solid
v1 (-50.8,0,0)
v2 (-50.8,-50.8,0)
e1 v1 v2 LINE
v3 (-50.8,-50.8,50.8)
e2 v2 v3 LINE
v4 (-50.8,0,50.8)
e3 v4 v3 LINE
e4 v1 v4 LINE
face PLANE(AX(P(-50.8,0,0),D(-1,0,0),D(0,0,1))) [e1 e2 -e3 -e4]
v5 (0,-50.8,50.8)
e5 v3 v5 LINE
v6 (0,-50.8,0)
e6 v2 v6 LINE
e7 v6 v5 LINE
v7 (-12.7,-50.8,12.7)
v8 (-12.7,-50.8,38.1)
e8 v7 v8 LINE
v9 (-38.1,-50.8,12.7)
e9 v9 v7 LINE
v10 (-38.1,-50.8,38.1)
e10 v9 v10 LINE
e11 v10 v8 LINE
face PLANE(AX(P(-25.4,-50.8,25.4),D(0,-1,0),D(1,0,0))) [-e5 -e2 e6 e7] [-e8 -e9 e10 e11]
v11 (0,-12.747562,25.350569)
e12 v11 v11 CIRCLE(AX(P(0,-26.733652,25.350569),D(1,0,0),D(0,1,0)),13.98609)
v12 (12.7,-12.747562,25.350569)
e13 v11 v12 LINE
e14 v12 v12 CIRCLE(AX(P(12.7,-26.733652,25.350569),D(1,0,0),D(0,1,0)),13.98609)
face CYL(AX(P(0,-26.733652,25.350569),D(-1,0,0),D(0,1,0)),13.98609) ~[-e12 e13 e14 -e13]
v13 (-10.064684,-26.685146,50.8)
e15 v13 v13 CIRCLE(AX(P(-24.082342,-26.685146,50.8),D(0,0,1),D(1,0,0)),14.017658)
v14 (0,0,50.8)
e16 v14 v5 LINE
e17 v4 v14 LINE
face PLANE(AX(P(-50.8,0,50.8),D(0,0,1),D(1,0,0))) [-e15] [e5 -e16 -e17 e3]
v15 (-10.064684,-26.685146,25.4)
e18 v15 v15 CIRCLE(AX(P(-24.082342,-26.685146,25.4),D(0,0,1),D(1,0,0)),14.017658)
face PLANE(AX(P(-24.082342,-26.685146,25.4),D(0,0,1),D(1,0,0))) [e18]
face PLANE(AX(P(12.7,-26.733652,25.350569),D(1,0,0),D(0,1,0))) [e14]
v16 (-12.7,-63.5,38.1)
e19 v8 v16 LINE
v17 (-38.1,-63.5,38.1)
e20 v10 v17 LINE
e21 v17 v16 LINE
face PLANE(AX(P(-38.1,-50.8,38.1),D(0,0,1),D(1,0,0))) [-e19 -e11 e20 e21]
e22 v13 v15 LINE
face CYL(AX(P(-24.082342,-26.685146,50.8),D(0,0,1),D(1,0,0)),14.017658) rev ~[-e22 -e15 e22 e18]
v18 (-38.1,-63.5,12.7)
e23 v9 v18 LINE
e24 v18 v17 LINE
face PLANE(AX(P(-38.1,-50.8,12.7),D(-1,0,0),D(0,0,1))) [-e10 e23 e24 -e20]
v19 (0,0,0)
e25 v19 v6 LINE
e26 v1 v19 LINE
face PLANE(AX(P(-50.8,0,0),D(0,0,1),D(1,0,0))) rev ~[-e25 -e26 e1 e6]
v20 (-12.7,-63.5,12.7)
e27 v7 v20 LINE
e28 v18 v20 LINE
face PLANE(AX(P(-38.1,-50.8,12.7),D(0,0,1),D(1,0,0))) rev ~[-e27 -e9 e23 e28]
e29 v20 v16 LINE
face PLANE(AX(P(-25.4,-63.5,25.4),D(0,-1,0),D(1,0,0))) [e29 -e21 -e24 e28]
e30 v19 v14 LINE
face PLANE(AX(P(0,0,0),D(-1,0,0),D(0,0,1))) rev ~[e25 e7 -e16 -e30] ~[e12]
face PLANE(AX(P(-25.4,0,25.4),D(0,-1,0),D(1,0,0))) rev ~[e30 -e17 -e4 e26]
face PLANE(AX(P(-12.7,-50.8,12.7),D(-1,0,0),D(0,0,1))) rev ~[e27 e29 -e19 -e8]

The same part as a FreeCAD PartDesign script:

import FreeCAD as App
import Part
import Sketcher
from FreeCAD import Vector
Q = App.Units.Quantity

doc = App.newDocument("Part")
body = doc.addObject("PartDesign::Body", "Body")

# Sketch on XZ plane
sketch1 = body.newObject("Sketcher::SketchObject", "Sketch")
sketch1.AttachmentSupport = (doc.getObject("XZ_Plane"), [""])
sketch1.MapMode = "FlatFace"
sketch1.addGeometry([
    Part.LineSegment(Vector(-51, 51, 0), Vector(-51, 0, 0)),
    Part.LineSegment(Vector(-51, 0, 0), Vector(0, 0, 0)),
    Part.LineSegment(Vector(0, 0, 0), Vector(0, 51, 0)),
    Part.LineSegment(Vector(0, 51, 0), Vector(-51, 51, 0)),
], False)
sketch1.addConstraint([
    Sketcher.Constraint("Coincident", 0, 2, 1, 1),
    Sketcher.Constraint("Coincident", 1, 2, 2, 1),
    Sketcher.Constraint("Coincident", 2, 2, 3, 1),
    Sketcher.Constraint("Coincident", 3, 2, 0, 1),
    Sketcher.Constraint("Vertical", 0),
    Sketcher.Constraint("Horizontal", 1),
    Sketcher.Constraint("Vertical", 2),
    Sketcher.Constraint("Horizontal", 3),
    Sketcher.Constraint("Coincident", 1, 2, -1, 1),
    Sketcher.Constraint("Equal", 3, 0),
    Sketcher.Constraint("DistanceX", 1, 1, 1, 2, Q("2 in")),
])
pad1 = body.newObject("PartDesign::Pad", "Pad")
pad1.Profile = sketch1
pad1.Length = Q("2 in")

# Sketch on XZ plane
sketch2 = body.newObject("Sketcher::SketchObject", "Sketch001")
sketch2.AttachmentSupport = (doc.getObject("XZ_Plane"), [""])
sketch2.MapMode = "FlatFace"
sketch2.AttachmentOffset = App.Placement(Vector(0, 0, 2 * 25.4), App.Rotation())
sketch2.addGeometry([
    Part.LineSegment(Vector(-38, 38, 0), Vector(-38, 13, 0)),
    Part.LineSegment(Vector(-38, 13, 0), Vector(-13, 13, 0)),
    Part.LineSegment(Vector(-13, 13, 0), Vector(-13, 38, 0)),
    Part.LineSegment(Vector(-13, 38, 0), Vector(-38, 38, 0)),
], False)
sketch2.addConstraint([
    Sketcher.Constraint("Coincident", 0, 2, 1, 1),
    Sketcher.Constraint("Coincident", 1, 2, 2, 1),
    Sketcher.Constraint("Coincident", 2, 2, 3, 1),
    Sketcher.Constraint("Coincident", 3, 2, 0, 1),
    Sketcher.Constraint("Vertical", 0),
    Sketcher.Constraint("Horizontal", 1),
    Sketcher.Constraint("Vertical", 2),
    Sketcher.Constraint("Horizontal", 3),
    Sketcher.Constraint("Equal", 3, 0),
    Sketcher.Constraint("DistanceX", 1, 1, 1, 2, Q("1 in")),
    Sketcher.Constraint("DistanceX", 0, 2, -1, 1, Q("1.5 in")),
    Sketcher.Constraint("DistanceY", -1, 1, 0, 2, Q("0.5 in")),
])
pad2 = body.newObject("PartDesign::Pad", "Pad001")
pad2.Profile = sketch2
pad2.Length = Q("0.5 in")

# Sketch on XY plane
sketch3 = body.newObject("Sketcher::SketchObject", "Sketch002")
sketch3.AttachmentSupport = (doc.getObject("XY_Plane"), [""])
sketch3.MapMode = "FlatFace"
sketch3.AttachmentOffset = App.Placement(Vector(0, 0, 2 * 25.4), App.Rotation())
sketch3.addGeometry(Part.Circle(Vector(-24, -27, 0), Vector(0, 0, 1), 14), False)
sketch3.addConstraint([
    Sketcher.Constraint("Diameter", 0, Q("28.035316 mm")),
    Sketcher.Constraint("DistanceX", 0, 3, -1, 1, Q("24.082342 mm")),
    Sketcher.Constraint("DistanceY", 0, 3, -1, 1, Q("26.685146 mm")),
])
pocket1 = body.newObject("PartDesign::Pocket", "Pocket")
pocket1.Profile = sketch3
pocket1.Length = Q("1 in")

# Sketch on YZ plane
sketch4 = body.newObject("Sketcher::SketchObject", "Sketch003")
sketch4.AttachmentSupport = (doc.getObject("YZ_Plane"), [""])
sketch4.MapMode = "FlatFace"
sketch4.addGeometry(Part.Circle(Vector(-27, 25, 0), Vector(0, 0, 1), 14), False)
sketch4.addConstraint([
    Sketcher.Constraint("Diameter", 0, Q("27.97218 mm")),
    Sketcher.Constraint("DistanceX", 0, 3, -1, 1, Q("26.733652 mm")),
    Sketcher.Constraint("DistanceY", -1, 1, 0, 3, Q("25.350569 mm")),
])
pad3 = body.newObject("PartDesign::Pad", "Pad002")
pad3.Profile = sketch4
pad3.Length = Q("0.5 in")

doc.recompute()
